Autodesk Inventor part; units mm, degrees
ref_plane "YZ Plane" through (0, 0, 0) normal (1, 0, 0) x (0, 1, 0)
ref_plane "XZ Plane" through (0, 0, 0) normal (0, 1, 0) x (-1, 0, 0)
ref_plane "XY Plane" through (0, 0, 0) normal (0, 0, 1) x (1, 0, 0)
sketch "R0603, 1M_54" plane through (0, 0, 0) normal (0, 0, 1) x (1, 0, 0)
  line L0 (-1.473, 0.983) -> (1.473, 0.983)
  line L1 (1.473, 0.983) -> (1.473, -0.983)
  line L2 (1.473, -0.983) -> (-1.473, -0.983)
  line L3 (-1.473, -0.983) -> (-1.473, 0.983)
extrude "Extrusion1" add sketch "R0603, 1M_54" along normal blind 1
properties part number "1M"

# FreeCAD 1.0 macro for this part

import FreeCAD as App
import Part
import Sketcher
from FreeCAD import Vector
Q = App.Units.Quantity


def add_polygon(sketch, points):
    """Adds a closed chain of lines whose ends are joined by coincident constraints."""
    first, n = sketch.GeometryCount, len(points)
    for a, b in zip(points, points[1:] + points[:1]):
        sketch.addGeometry(Part.LineSegment(App.Vector(*a, 0), App.Vector(*b, 0)), False)
    for i in range(n):
        sketch.addConstraint(Sketcher.Constraint("Coincident", first + i, 2, first + (i + 1) % n, 1))

doc = App.newDocument("Part")
body = doc.addObject("PartDesign::Body", "Body")

sketch1 = body.newObject("Sketcher::SketchObject", "Sketch")
sketch1.AttachmentSupport = (doc.getObject("XY_Plane"), [""])
sketch1.MapMode = "FlatFace"
add_polygon(sketch1, [(1.5, 1), (-1.5, 1), (-1.5, -1), (1.5, -1)])
sketch1.addConstraint([
    Sketcher.Constraint("Horizontal", 0),
    Sketcher.Constraint("Vertical", 1),
    Sketcher.Constraint("Horizontal", 2),
    Sketcher.Constraint("Vertical", 3),
    Sketcher.Constraint("Symmetric", 0, 2, 2, 2, -1, 1),
    Sketcher.Constraint("DistanceX", 0, 2, 0, 1, Q("2.946 mm")),
    Sketcher.Constraint("DistanceY", 1, 2, 1, 1, Q("1.966 mm")),
])
pad1 = body.newObject("PartDesign::Pad", "Pad")
pad1.Profile = sketch1
pad1.Length = 1

doc.recompute()
